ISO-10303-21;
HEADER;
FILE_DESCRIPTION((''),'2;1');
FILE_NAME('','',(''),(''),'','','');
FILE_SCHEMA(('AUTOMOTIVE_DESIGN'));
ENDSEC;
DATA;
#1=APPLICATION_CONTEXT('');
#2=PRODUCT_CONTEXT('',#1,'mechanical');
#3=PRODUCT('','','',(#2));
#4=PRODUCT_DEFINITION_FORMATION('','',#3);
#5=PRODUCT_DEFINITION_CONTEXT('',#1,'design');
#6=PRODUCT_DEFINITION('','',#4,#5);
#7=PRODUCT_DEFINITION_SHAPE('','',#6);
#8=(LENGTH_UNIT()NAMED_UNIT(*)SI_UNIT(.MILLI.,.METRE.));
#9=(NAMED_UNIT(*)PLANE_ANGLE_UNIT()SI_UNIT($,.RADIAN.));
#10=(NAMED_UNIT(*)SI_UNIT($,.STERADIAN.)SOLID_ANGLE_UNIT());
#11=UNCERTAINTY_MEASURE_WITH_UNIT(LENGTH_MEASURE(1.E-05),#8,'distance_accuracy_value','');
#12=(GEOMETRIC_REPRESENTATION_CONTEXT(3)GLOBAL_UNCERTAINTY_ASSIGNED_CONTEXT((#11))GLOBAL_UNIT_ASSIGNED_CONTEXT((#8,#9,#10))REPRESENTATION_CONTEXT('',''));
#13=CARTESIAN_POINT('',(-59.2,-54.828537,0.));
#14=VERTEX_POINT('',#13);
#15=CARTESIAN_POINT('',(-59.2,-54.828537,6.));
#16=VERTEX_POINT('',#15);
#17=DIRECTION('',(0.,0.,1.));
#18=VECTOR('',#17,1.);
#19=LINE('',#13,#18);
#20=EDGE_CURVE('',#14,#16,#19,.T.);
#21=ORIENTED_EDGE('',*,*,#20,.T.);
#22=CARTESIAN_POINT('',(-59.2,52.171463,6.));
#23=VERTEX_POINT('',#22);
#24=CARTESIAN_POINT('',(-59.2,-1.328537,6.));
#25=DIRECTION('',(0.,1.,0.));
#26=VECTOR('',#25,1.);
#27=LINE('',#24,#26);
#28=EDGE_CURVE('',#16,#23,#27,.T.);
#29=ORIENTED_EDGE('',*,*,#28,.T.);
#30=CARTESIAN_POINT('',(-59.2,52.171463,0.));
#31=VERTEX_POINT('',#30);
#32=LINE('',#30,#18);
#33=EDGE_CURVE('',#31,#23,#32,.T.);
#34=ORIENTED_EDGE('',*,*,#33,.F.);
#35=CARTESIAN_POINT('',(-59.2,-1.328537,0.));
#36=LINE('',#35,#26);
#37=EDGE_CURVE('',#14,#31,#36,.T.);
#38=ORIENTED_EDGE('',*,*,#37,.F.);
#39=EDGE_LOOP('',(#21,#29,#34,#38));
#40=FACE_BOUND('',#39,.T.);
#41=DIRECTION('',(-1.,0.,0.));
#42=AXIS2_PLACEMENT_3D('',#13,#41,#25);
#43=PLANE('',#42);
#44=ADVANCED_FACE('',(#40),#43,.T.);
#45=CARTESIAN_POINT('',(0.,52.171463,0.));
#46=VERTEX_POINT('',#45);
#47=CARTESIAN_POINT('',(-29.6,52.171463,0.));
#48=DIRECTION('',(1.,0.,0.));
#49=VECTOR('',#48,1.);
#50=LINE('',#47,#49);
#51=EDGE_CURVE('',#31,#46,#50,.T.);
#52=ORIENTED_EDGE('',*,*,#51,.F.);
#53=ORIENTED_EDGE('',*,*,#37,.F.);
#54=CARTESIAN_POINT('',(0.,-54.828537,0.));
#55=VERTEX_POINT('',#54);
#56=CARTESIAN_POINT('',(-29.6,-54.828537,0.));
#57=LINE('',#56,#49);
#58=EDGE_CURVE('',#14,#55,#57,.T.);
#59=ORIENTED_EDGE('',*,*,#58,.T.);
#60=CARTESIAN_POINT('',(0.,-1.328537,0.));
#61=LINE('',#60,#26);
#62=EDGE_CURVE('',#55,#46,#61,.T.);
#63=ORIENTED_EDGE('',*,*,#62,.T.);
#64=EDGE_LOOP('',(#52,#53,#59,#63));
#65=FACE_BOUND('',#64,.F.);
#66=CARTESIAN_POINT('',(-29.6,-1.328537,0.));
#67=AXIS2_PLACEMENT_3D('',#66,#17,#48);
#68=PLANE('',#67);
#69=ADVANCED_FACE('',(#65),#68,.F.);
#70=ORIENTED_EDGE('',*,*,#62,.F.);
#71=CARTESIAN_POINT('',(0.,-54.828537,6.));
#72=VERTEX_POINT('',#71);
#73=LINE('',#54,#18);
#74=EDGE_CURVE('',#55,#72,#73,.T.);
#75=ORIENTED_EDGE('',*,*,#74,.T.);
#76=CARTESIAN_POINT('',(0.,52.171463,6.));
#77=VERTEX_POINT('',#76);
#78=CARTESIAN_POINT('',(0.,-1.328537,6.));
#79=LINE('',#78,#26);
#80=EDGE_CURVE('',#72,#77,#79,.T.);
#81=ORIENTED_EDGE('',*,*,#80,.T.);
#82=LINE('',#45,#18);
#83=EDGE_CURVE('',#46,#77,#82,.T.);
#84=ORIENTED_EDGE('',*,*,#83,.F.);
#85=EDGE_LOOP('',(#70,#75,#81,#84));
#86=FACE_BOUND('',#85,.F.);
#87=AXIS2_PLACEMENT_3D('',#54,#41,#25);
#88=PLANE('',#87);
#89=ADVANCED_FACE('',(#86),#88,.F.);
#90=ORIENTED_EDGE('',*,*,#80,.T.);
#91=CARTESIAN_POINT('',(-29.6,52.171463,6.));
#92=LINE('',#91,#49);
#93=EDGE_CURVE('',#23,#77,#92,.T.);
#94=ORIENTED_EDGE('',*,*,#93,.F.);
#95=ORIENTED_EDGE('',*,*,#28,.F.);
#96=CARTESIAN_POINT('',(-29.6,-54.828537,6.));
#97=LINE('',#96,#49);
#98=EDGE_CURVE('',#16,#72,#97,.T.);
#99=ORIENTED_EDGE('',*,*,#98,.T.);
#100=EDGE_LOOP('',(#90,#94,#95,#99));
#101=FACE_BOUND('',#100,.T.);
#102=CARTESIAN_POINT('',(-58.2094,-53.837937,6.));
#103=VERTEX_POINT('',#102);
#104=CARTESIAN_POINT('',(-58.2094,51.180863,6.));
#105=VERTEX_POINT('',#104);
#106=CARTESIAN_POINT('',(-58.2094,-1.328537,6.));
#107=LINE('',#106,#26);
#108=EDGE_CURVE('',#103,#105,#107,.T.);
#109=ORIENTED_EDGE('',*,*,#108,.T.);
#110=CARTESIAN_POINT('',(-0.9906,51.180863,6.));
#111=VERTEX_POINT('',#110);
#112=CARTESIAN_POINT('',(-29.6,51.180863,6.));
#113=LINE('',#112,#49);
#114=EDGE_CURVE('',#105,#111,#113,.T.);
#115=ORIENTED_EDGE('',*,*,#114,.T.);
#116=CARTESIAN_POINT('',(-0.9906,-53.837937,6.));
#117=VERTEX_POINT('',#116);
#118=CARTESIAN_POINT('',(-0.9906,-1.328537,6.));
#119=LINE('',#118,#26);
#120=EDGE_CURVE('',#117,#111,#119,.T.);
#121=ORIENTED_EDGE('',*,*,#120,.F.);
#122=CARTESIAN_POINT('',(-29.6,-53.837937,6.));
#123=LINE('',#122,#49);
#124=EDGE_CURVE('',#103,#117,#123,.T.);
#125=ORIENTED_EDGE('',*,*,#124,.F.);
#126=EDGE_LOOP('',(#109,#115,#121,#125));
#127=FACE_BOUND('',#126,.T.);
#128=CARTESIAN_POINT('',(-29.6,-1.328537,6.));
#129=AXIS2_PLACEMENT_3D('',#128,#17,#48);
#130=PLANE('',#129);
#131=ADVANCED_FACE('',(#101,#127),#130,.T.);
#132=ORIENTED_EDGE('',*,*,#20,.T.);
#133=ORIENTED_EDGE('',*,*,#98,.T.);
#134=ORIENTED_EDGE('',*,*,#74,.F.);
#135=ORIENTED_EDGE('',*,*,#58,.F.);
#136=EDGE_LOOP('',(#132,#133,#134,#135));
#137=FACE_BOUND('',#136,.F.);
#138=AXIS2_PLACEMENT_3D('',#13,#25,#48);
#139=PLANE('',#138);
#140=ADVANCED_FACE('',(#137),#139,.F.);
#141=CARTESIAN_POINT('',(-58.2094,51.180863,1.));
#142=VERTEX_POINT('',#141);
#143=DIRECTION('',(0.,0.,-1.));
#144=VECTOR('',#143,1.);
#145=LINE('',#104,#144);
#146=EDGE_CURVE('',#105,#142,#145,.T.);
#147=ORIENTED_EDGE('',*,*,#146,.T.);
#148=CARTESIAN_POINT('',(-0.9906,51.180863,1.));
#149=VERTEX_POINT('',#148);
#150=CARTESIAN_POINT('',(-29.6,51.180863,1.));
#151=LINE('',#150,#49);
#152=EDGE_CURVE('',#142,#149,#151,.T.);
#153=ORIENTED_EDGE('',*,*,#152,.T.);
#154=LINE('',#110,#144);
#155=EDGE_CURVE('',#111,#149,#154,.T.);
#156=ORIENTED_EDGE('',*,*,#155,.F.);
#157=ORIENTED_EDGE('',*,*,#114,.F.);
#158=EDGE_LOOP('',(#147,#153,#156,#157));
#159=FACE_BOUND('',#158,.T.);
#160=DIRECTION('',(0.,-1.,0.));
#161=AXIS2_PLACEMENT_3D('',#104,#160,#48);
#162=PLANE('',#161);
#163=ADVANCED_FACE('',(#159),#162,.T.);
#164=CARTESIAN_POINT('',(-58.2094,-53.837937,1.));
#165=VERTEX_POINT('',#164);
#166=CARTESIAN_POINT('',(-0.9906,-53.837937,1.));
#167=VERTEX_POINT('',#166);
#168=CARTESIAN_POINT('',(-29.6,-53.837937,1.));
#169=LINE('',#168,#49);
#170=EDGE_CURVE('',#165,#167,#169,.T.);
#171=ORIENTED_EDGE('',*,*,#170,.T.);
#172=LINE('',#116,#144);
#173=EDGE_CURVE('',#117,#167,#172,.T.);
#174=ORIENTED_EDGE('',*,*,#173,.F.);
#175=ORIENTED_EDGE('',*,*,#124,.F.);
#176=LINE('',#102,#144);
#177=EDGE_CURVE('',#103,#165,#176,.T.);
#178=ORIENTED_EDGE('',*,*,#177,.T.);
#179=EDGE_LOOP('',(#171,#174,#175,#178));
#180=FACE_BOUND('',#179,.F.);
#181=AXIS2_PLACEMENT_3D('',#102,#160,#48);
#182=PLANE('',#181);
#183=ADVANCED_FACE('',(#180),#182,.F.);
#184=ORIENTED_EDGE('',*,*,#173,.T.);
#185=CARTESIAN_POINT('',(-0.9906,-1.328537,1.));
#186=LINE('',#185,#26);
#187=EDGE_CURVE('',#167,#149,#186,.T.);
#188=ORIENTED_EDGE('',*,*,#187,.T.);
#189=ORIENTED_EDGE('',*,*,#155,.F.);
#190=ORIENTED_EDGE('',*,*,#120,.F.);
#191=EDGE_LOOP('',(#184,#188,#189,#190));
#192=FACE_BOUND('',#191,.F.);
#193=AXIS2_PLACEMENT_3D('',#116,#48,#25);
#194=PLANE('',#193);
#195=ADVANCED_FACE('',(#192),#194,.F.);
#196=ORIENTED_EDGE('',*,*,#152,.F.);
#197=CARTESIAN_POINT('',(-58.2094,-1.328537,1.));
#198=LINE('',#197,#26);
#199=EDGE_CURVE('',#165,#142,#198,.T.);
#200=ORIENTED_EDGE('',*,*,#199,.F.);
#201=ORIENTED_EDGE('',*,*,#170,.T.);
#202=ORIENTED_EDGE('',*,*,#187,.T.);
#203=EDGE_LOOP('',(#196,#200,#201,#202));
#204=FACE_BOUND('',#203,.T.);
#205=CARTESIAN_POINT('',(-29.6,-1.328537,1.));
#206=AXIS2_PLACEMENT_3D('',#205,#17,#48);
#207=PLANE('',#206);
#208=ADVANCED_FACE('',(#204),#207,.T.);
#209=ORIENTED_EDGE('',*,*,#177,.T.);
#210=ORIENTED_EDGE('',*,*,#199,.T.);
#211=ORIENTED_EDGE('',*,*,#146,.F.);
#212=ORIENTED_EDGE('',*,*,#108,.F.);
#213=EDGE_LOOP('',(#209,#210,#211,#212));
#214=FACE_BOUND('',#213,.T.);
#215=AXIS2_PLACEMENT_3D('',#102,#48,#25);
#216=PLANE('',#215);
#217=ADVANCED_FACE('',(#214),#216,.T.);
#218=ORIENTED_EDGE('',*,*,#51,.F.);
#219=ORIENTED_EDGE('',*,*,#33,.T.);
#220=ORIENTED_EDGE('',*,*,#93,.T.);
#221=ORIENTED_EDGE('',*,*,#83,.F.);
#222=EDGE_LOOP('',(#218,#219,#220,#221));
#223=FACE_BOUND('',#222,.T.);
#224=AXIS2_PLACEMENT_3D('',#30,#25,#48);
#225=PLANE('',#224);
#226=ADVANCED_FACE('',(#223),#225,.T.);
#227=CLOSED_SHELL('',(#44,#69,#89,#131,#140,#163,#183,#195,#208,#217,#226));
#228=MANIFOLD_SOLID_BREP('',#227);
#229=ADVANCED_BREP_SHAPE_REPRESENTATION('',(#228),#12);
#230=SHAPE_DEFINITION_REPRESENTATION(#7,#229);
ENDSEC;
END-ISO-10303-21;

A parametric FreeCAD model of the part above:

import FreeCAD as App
import Part
import Sketcher
from FreeCAD import Vector


def add_polygon(sketch, points):
    """Adds a closed chain of lines whose ends are joined by coincident constraints."""
    first, n = sketch.GeometryCount, len(points)
    for a, b in zip(points, points[1:] + points[:1]):
        sketch.addGeometry(Part.LineSegment(App.Vector(*a, 0), App.Vector(*b, 0)), False)
    for i in range(n):
        sketch.addConstraint(Sketcher.Constraint("Coincident", first + i, 2, first + (i + 1) % n, 1))

doc = App.newDocument("Part")
params = doc.addObject("Spreadsheet::Sheet", "Params")
for row, (alias, value) in enumerate([
    ("sketch1_height", "107 mm"),
    ("sketch1_width", "59.2 mm"),
    ("pad1_length", "6 mm"),
    ("pocket1_length", "5 mm"),
], start=1):
    params.set(f"A{row}", alias)
    params.set(f"B{row}", "=" + value)
    params.setAlias(f"B{row}", alias)

body = doc.addObject("PartDesign::Body", "Body")

sketch1 = body.newObject("Sketcher::SketchObject", "Sketch")
sketch1.AttachmentSupport = (doc.getObject("XY_Plane"), [""])
sketch1.MapMode = "FlatFace"
add_polygon(sketch1, [(-59, 52), (-59, -55), (0, -55), (0, 52)])
sketch1.addConstraint([
    Sketcher.Constraint("Vertical", 0),
    Sketcher.Constraint("Horizontal", 1),
    Sketcher.Constraint("Vertical", 2),
    Sketcher.Constraint("Horizontal", 3),
    Sketcher.Constraint("PointOnObject", 1, 2, -2),
    Sketcher.Constraint("DistanceY", 0, 2, 0, 1, 107.0),
    Sketcher.Constraint("DistanceX", 1, 1, 1, 2, 59.2),
    Sketcher.Constraint("DistanceY", 0, 2, -1, 1, 54.828537),
])
sketch1.setExpression("Constraints[9]", "Params.sketch1_height")
sketch1.setExpression("Constraints[10]", "Params.sketch1_width")
pad1 = body.newObject("PartDesign::Pad", "Pad")
pad1.Profile = sketch1
pad1.setExpression("Length", "Params.pad1_length")

sketch2 = body.newObject("Sketcher::SketchObject", "Sketch001")
sketch2.AttachmentSupport = (doc.getObject("XY_Plane"), [""])
sketch2.MapMode = "FlatFace"
sketch2.AttachmentOffset = App.Placement(Vector(0, 0, 6), App.Rotation())
add_polygon(sketch2, [(-58, 51), (-58, -54), (-1, -54), (-1, 51)])
sketch2.addConstraint([
    Sketcher.Constraint("Vertical", 0),
    Sketcher.Constraint("Horizontal", 1),
    Sketcher.Constraint("Vertical", 2),
    Sketcher.Constraint("Horizontal", 3),
    Sketcher.Constraint("DistanceX", 1, 1, 1, 2, 57.2188),
    Sketcher.Constraint("DistanceY", 0, 2, 0, 1, 105.0188),
    Sketcher.Constraint("DistanceX", 0, 2, -1, 1, 58.2094),
    Sketcher.Constraint("DistanceY", 0, 2, -1, 1, 53.837937),
])
pocket1 = body.newObject("PartDesign::Pocket", "Pocket")
pocket1.Profile = sketch2
pocket1.setExpression("Length", "Params.pocket1_length")

doc.recompute()
